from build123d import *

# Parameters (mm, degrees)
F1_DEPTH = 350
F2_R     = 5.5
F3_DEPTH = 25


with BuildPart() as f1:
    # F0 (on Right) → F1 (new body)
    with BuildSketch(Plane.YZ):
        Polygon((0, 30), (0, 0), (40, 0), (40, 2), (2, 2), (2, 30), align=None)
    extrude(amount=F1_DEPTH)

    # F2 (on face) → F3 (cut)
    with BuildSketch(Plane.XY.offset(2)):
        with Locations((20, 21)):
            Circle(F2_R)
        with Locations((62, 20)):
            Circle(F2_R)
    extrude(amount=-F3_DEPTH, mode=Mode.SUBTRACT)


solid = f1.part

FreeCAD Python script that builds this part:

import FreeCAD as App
import Part
import Sketcher
Q = App.Units.Quantity


def add_polygon(sketch, points):
    """Adds a closed chain of lines whose ends are joined by coincident constraints."""
    first, n = sketch.GeometryCount, len(points)
    for a, b in zip(points, points[1:] + points[:1]):
        sketch.addGeometry(Part.LineSegment(App.Vector(*a, 0), App.Vector(*b, 0)), False)
    for i in range(n):
        sketch.addConstraint(Sketcher.Constraint("Coincident", first + i, 2, first + (i + 1) % n, 1))

doc = App.newDocument("Part")
body = doc.addObject("PartDesign::Body", "Body")

# Sketch on YZ plane
sketch1 = body.newObject("Sketcher::SketchObject", "Sketch")
sketch1.AttachmentSupport = (doc.getObject("YZ_Plane"), [""])
sketch1.MapMode = "FlatFace"
add_polygon(sketch1, [(0, 30), (0, 0), (40, 0), (40, 2), (2, 2), (2, 30)])  # lines 0-5
sketch1.addConstraint([
    Sketcher.Constraint("Vertical", 0),
    Sketcher.Constraint("Horizontal", 1),
    Sketcher.Constraint("Vertical", 2),
    Sketcher.Constraint("Horizontal", 3),
    Sketcher.Constraint("Vertical", 4),
    Sketcher.Constraint("Horizontal", 5),
    Sketcher.Constraint("Coincident", 0, 2, -1, 1),
    Sketcher.Constraint("Equal", 5, 2),
    Sketcher.Constraint("DistanceX", 1, 1, 1, 2, Q("40 mm")),
    Sketcher.Constraint("DistanceX", 3, 2, 3, 1, Q("38 mm")),
    Sketcher.Constraint("DistanceY", 0, 2, 0, 1, Q("30 mm")),
])
pad1 = body.newObject("PartDesign::Pad", "Pad")
pad1.Profile = sketch1
pad1.Length = 350

# Sketch on XY plane
sketch2 = body.newObject("Sketcher::SketchObject", "Sketch001")
sketch2.AttachmentSupport = (doc.getObject("XY_Plane"), [""])
sketch2.MapMode = "FlatFace"
sketch2.AttachmentOffset = App.Placement(App.Vector(0, 0, 2), App.Rotation())
sketch2.addGeometry([
    Part.Circle(App.Vector(20, 21, 0), App.Vector(0, 0, 1), 5.5),
    Part.Circle(App.Vector(62, 20, 0), App.Vector(0, 0, 1), 5.5),
], False)
sketch2.addConstraint([
    Sketcher.Constraint("Equal", 0, 1),
    Sketcher.Constraint("Diameter", 0, Q("11 mm")),
    Sketcher.Constraint("DistanceX", -1, 1, 0, 3, Q("20 mm")),
    Sketcher.Constraint("DistanceY", -1, 1, 0, 3, Q("21 mm")),
    Sketcher.Constraint("DistanceX", -1, 1, 1, 3, Q("62 mm")),
    Sketcher.Constraint("DistanceY", -1, 1, 1, 3, Q("20 mm")),
])
pocket1 = body.newObject("PartDesign::Pocket", "Pocket")
pocket1.Profile = sketch2
pocket1.Length = 25

doc.recompute()
